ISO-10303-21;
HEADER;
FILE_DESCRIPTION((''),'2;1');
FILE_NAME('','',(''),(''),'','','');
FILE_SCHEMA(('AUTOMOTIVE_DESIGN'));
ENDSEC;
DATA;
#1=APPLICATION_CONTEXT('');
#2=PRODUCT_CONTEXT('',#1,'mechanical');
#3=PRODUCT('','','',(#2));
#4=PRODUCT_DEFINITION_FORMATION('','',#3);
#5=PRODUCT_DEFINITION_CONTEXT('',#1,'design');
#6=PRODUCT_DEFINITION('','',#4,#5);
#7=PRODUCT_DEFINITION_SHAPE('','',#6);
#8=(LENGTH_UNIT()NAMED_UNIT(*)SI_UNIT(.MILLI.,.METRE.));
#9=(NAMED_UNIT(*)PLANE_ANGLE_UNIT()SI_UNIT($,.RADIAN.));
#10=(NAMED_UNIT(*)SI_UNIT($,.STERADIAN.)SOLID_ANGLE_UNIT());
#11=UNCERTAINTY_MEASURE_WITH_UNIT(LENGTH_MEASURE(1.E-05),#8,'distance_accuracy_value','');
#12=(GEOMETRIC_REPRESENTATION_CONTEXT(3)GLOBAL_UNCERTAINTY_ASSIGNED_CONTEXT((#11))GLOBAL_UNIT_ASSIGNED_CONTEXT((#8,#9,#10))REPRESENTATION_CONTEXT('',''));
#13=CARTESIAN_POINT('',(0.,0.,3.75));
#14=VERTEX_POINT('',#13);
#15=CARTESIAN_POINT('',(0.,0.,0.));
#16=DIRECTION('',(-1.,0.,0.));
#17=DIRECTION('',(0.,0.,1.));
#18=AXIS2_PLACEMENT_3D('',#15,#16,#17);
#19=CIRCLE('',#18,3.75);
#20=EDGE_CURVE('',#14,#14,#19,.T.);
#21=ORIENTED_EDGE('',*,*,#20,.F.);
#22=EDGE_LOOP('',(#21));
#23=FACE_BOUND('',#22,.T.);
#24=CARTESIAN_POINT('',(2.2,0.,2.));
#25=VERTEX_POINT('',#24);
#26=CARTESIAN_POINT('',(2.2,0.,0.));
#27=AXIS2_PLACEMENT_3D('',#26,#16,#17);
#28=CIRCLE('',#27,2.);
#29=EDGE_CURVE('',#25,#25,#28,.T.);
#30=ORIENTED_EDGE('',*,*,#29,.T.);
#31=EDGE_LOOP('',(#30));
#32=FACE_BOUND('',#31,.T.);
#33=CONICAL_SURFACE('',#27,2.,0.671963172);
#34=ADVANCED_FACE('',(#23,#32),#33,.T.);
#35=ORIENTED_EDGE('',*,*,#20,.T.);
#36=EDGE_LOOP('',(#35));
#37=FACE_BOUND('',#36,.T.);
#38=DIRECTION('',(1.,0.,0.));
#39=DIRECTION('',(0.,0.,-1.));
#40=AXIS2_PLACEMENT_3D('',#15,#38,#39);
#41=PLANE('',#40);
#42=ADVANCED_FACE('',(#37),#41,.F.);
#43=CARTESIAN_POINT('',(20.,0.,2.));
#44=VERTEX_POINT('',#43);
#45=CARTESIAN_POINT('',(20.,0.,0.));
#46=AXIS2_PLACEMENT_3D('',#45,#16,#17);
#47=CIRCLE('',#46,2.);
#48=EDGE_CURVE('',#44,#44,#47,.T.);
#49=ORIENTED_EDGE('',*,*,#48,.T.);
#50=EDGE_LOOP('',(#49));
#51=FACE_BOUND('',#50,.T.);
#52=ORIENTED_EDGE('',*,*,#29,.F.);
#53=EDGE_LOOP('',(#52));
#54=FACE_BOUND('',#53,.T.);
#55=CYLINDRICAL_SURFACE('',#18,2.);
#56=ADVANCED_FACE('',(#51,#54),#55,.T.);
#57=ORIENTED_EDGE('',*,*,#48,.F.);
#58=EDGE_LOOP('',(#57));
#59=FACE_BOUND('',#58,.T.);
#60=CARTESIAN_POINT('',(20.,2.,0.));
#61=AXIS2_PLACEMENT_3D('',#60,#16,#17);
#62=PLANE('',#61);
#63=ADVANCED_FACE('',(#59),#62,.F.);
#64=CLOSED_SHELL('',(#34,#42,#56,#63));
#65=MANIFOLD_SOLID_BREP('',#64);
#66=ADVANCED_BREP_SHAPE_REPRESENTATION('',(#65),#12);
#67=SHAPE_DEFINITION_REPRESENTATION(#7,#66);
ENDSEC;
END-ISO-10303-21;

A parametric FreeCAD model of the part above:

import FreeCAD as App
import Part
import Sketcher
from FreeCAD import Vector
Q = App.Units.Quantity


def add_polygon(sketch, points):
    """Adds a closed chain of lines whose ends are joined by coincident constraints."""
    first, n = sketch.GeometryCount, len(points)
    for a, b in zip(points, points[1:] + points[:1]):
        sketch.addGeometry(Part.LineSegment(App.Vector(*a, 0), App.Vector(*b, 0)), False)
    for i in range(n):
        sketch.addConstraint(Sketcher.Constraint("Coincident", first + i, 2, first + (i + 1) % n, 1))

doc = App.newDocument("Part")
params = doc.addObject("Spreadsheet::Sheet", "Params")
for row, (alias, value) in enumerate([
    ("sketch1_width", "20 mm"),
    ("sketch1_height", "2 mm"),
    ("sketch1_width2", "17.8 mm"),
    ("sketch1_height2", "3.75 mm"),
    ("revolution_angle", "360 deg"),
], start=1):
    params.set(f"A{row}", alias)
    params.set(f"B{row}", "=" + value)
    params.setAlias(f"B{row}", alias)

body = doc.addObject("PartDesign::Body", "Body")

# Sketch on XY plane
sketch1 = body.newObject("Sketcher::SketchObject", "Sketch")
sketch1.AttachmentSupport = (doc.getObject("XY_Plane"), [""])
sketch1.MapMode = "FlatFace"
add_polygon(sketch1, [(0, 3.75), (0, 0), (20, 0), (20, 2), (2.2, 2)])  # lines 0-4
sketch1.addConstraint(Sketcher.Constraint("Vertical", 0))
sketch1.addConstraint(Sketcher.Constraint("Horizontal", 1))
sketch1.addConstraint(Sketcher.Constraint("Vertical", 2))
sketch1.addConstraint(Sketcher.Constraint("Horizontal", 3))
sketch1.addConstraint(Sketcher.Constraint("Coincident", 0, 2, -1, 1))
sketch1.addConstraint(Sketcher.Constraint("DistanceX", 1, 1, 1, 2, Q("20 mm")))
sketch1.addConstraint(Sketcher.Constraint("DistanceY", 2, 1, 2, 2, Q("2 mm")))
sketch1.addConstraint(Sketcher.Constraint("DistanceX", 3, 2, 3, 1, Q("17.8 mm")))
sketch1.addConstraint(Sketcher.Constraint("DistanceY", 0, 2, 0, 1, Q("3.75 mm")))
sketch1.setExpression("Constraints[10]", "Params.sketch1_width")
sketch1.setExpression("Constraints[11]", "Params.sketch1_height")
sketch1.setExpression("Constraints[12]", "Params.sketch1_width2")
sketch1.setExpression("Constraints[13]", "Params.sketch1_height2")
revolution = body.newObject("PartDesign::Revolution", "Revolution")
revolution.Profile = sketch1
revolution.ReferenceAxis = (sketch1, ["H_Axis"])
revolution.setExpression("Angle", "Params.revolution_angle")

doc.recompute()
